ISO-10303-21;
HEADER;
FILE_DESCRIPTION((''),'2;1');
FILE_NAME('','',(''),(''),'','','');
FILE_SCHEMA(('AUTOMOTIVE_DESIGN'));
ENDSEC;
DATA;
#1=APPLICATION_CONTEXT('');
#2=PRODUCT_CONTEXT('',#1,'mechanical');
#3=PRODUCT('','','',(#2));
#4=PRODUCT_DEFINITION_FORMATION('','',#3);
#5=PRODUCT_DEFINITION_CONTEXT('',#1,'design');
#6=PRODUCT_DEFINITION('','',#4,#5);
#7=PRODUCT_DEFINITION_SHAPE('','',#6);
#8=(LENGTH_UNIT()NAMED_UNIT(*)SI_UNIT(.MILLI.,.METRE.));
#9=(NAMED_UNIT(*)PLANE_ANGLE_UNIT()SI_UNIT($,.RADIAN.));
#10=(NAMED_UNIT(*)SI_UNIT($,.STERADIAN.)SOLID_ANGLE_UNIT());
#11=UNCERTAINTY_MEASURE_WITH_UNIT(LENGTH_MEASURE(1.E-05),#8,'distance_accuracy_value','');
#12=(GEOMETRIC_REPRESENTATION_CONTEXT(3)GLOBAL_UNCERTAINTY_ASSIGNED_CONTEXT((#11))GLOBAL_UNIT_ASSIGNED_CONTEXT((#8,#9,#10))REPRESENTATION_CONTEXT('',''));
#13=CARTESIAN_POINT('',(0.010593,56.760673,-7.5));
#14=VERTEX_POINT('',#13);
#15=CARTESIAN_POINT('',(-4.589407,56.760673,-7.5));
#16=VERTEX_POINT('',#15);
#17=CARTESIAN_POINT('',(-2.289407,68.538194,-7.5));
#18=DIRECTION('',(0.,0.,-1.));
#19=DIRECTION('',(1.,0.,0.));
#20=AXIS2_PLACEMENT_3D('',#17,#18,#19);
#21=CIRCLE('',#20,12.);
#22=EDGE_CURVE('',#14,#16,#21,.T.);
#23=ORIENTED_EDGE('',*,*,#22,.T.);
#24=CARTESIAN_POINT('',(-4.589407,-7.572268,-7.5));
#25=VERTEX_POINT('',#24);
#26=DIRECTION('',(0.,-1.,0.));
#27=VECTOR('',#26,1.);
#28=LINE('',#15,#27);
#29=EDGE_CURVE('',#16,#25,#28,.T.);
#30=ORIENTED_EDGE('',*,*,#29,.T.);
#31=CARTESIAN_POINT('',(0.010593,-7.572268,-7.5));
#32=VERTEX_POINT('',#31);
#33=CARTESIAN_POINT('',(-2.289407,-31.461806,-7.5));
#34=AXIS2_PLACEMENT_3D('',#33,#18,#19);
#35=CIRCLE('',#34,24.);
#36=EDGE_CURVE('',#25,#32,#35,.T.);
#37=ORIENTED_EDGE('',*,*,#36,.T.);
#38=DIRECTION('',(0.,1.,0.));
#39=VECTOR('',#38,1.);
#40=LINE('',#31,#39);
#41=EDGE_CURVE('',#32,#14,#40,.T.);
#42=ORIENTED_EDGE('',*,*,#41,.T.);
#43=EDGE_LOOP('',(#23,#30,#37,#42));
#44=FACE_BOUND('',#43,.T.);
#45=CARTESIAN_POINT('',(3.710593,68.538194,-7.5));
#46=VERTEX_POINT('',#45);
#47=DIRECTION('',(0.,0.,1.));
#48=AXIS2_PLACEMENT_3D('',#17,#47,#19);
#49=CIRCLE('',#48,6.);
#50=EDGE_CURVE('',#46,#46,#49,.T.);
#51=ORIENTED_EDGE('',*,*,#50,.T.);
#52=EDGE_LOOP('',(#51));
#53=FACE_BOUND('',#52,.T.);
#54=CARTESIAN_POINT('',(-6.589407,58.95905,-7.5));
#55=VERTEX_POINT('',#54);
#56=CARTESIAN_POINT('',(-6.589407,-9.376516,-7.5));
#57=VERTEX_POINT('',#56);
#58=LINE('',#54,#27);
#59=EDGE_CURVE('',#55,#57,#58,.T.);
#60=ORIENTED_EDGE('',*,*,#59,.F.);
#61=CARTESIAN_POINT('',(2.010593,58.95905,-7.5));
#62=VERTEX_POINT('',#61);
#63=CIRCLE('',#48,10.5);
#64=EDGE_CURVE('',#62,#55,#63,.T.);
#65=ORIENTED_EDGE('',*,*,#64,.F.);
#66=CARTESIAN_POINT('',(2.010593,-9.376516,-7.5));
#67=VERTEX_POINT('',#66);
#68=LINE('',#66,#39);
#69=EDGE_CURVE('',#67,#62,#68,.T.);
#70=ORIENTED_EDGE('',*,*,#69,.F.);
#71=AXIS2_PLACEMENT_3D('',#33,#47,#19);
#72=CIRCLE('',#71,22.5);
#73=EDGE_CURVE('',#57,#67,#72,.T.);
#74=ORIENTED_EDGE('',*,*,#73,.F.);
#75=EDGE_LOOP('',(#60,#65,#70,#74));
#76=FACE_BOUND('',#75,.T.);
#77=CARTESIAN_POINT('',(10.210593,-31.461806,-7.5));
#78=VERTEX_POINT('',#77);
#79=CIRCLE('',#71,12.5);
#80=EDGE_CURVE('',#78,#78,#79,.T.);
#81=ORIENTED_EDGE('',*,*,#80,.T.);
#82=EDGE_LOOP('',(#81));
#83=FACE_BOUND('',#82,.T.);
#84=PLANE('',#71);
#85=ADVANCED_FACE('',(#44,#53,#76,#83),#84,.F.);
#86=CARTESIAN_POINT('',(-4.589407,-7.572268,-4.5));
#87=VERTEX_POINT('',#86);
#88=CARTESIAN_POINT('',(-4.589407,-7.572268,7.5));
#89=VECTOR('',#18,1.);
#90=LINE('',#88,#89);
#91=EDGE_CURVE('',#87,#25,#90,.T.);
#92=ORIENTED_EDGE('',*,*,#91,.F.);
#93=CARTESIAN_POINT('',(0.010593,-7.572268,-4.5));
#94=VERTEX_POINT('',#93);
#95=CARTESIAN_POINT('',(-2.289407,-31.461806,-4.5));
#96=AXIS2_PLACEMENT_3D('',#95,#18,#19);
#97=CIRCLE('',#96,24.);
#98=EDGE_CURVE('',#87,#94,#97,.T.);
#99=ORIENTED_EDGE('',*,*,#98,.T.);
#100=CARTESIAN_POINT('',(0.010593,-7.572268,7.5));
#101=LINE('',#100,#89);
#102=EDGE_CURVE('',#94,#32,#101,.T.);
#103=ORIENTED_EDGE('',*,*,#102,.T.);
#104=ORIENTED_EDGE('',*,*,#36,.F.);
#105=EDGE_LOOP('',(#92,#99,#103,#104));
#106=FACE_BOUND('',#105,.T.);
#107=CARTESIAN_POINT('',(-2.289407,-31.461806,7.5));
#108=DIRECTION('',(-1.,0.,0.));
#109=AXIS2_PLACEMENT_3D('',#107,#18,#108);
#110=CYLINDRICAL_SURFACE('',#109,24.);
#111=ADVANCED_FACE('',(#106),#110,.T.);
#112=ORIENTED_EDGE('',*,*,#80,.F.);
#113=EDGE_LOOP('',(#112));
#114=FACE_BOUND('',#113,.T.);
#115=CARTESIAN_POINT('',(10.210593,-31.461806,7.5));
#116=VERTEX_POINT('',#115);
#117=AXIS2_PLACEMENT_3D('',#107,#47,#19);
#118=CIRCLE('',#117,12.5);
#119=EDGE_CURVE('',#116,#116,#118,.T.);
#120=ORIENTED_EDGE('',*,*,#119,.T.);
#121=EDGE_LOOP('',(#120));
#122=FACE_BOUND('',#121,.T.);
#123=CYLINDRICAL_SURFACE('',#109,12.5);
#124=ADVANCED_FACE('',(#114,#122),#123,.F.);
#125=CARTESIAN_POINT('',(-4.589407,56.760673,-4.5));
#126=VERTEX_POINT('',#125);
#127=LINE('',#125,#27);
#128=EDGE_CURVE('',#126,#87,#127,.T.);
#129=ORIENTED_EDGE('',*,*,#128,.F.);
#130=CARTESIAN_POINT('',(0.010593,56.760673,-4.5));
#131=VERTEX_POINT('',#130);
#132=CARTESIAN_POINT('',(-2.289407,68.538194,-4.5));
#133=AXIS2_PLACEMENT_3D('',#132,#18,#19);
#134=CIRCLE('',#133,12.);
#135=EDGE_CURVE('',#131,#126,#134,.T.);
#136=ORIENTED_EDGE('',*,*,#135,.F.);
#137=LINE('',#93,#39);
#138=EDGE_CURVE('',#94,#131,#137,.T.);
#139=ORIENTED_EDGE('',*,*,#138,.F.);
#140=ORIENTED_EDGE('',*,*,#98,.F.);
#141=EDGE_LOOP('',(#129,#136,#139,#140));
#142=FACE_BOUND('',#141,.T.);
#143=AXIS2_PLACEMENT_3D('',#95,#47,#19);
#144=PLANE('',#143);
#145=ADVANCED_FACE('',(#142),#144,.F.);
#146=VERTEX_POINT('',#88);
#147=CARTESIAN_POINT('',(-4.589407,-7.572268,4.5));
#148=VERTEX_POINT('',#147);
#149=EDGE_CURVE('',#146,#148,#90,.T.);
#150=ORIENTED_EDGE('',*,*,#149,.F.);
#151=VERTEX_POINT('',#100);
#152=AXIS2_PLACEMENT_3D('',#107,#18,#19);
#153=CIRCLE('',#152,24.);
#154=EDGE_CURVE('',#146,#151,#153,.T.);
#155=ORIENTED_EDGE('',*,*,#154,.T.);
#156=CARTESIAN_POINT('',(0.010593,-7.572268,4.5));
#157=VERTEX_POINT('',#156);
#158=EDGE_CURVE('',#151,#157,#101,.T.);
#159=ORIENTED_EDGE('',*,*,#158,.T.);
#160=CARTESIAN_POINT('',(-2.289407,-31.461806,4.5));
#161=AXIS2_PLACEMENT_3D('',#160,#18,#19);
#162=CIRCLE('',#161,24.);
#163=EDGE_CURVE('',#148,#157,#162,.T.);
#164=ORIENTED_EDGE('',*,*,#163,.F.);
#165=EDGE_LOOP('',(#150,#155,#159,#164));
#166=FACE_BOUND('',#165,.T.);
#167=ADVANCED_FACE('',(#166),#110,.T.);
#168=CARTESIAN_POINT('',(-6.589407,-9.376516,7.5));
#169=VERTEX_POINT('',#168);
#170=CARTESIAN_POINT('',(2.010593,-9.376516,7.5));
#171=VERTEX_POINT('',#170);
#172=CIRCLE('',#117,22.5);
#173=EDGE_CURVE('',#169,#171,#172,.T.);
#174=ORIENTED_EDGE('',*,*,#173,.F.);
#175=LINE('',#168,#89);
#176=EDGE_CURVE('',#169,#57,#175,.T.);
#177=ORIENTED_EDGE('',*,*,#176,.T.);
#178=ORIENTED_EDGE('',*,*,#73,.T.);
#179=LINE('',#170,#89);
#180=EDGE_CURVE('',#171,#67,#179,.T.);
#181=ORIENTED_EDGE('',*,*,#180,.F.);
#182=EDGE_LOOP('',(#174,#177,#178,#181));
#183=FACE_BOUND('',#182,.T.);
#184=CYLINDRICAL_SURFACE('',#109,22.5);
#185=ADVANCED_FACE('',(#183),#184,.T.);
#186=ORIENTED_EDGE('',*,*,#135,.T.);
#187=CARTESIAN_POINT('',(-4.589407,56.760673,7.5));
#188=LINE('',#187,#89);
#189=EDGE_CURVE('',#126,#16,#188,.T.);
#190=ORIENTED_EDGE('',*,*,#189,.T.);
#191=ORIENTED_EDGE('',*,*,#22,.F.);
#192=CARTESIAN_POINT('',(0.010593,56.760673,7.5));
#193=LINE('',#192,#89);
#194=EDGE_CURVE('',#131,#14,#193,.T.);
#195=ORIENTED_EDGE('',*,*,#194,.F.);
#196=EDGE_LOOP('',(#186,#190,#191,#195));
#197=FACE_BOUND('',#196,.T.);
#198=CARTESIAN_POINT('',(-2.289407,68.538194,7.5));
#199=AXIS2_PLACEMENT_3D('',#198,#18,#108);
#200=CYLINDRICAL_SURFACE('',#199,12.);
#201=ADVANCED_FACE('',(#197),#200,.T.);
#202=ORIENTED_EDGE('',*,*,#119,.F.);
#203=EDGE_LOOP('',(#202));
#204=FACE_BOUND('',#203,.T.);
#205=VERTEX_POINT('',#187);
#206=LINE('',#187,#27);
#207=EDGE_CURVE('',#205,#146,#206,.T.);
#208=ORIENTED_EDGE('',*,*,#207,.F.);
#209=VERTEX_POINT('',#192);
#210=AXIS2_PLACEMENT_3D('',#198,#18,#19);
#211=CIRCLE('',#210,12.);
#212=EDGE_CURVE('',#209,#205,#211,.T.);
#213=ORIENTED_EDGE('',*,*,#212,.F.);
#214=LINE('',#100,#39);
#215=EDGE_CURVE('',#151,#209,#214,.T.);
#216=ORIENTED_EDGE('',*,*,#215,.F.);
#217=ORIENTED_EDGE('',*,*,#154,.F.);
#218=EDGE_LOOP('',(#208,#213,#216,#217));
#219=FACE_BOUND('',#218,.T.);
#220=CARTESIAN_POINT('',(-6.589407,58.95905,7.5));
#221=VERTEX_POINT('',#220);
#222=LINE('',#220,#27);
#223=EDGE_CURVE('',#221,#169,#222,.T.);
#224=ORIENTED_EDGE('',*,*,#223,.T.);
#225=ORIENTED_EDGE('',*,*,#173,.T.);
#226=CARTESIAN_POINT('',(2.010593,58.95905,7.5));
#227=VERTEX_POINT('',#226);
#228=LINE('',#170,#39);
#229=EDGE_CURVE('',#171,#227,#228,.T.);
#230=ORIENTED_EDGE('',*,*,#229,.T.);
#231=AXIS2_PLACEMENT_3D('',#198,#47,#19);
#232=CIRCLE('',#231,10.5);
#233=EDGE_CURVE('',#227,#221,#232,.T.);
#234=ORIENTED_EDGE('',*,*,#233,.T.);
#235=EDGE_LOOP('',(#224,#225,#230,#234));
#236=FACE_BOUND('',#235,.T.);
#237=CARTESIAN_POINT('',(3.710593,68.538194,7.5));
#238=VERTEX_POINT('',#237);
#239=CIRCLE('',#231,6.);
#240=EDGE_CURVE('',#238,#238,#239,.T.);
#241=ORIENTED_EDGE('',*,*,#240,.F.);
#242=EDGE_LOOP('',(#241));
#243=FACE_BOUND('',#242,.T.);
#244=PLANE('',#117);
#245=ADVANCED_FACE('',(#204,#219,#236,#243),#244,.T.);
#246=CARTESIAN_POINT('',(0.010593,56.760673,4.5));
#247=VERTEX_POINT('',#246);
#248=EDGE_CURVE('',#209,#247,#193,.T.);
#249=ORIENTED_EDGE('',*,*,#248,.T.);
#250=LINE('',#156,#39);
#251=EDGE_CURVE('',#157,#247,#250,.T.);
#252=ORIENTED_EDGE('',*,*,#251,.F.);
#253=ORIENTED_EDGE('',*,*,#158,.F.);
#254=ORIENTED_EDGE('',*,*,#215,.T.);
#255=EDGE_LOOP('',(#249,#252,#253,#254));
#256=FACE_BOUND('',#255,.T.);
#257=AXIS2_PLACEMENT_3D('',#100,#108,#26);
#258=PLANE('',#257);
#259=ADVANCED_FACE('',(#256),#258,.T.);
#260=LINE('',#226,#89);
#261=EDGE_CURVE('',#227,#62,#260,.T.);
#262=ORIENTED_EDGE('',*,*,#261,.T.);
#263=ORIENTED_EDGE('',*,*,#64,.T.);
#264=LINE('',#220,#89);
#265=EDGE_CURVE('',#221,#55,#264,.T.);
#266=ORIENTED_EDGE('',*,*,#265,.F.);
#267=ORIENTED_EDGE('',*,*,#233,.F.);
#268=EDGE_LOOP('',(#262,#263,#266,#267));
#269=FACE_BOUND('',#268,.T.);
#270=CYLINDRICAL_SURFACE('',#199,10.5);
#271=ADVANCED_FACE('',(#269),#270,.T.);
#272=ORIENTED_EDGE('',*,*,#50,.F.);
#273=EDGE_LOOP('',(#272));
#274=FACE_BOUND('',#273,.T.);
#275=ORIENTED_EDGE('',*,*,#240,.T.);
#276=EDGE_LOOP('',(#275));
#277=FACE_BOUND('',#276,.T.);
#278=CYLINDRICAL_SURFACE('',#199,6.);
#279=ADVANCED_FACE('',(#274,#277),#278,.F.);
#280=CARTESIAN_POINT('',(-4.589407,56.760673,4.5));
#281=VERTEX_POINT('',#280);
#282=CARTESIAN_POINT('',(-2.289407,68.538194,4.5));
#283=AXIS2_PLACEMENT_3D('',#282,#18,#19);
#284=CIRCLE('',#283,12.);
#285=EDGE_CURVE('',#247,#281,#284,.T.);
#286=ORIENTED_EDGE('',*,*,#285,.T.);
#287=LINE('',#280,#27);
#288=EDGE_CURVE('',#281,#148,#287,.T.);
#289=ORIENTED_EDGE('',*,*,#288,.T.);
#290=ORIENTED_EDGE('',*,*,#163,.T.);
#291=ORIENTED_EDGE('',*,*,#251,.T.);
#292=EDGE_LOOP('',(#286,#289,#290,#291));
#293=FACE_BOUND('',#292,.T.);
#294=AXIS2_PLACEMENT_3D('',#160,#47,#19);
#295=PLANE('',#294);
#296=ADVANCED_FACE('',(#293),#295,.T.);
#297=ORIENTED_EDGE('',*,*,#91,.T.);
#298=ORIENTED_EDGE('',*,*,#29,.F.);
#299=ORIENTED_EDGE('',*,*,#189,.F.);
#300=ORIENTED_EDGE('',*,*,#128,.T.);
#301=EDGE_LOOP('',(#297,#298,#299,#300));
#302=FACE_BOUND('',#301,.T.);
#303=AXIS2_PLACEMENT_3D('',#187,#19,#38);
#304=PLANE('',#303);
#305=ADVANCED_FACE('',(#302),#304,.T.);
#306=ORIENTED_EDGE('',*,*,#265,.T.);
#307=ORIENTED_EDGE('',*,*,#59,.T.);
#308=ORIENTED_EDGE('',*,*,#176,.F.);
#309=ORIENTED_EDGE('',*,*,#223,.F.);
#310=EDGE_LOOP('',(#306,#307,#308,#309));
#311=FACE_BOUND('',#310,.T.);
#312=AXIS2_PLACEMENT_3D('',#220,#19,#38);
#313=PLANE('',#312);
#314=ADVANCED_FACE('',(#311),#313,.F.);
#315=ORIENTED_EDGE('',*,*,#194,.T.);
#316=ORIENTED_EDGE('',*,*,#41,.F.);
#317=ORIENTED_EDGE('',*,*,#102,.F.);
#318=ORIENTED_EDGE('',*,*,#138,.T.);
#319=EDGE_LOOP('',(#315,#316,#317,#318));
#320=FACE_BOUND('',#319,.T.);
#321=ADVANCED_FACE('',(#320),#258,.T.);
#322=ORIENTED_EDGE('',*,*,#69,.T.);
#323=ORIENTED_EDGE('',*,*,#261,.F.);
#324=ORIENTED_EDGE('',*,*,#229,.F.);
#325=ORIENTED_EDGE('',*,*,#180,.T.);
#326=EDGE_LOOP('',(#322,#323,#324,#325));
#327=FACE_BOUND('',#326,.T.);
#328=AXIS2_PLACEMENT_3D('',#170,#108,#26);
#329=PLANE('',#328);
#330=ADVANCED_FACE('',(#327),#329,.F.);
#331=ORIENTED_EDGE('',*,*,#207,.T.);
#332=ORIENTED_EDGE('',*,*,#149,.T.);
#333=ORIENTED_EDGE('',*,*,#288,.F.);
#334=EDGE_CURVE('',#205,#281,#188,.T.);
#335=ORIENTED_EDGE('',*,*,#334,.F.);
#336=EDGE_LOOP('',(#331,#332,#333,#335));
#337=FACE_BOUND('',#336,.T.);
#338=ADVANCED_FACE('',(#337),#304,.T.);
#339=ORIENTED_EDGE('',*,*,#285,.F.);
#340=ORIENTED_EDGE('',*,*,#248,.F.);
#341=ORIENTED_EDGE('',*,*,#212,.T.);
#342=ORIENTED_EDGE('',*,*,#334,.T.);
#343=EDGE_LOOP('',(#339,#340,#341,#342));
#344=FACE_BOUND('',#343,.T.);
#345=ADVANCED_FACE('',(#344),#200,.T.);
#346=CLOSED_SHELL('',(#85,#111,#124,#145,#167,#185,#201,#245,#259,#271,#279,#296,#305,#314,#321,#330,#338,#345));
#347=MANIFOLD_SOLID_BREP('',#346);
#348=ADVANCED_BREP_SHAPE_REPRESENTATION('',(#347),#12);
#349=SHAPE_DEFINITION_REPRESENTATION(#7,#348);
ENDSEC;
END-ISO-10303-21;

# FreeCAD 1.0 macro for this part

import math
import FreeCAD as App
import Part
import Sketcher
from FreeCAD import Vector

doc = App.newDocument("Part")
params = doc.addObject("Spreadsheet::Sheet", "Params")
for row, (alias, value) in enumerate([
    ("sketch1_diameter", "25 mm"),
    ("sketch1_diameter2", "12 mm"),
    ("sketch1_radius", "12 mm"),
    ("sketch1_radius2", "24 mm"),
    ("sketch1_radius3", "10.5 mm"),
    ("pad1_length", "15 mm"),
    ("sketch2_radius", "24 mm"),
    ("sketch2_radius2", "12 mm"),
    ("pad2_length", "9 mm"),
], start=1):
    params.set(f"A{row}", alias)
    params.set(f"B{row}", "=" + value)
    params.setAlias(f"B{row}", alias)

body = doc.addObject("PartDesign::Body", "Body")

sketch1 = body.newObject("Sketcher::SketchObject", "Sketch")
sketch1.AttachmentSupport = (doc.getObject("XY_Plane"), [""])
sketch1.MapMode = "FlatFace"
sketch1.addGeometry([
    Part.LineSegment(Vector(2.010593, -9.376516, 0), Vector(2.010593, 58.95905, 0)),
    Part.ArcOfCircle(Part.Circle(Vector(-2.289407, 68.538194, 0), Vector(0, 0, 1), 10.5), math.radians(-65.825075), math.radians(245.825075)),
    Part.LineSegment(Vector(-6.589407, 58.95905, 0), Vector(-6.589407, -9.376516, 0)),
    Part.ArcOfCircle(Part.Circle(Vector(-2.289407, -31.461806, 0), Vector(0, 0, 1), 22.5), math.radians(101.017634), math.radians(438.982366)),
    Part.Circle(Vector(-2.289407, -31.461806, 0), Vector(0, 0, 1), 12.5),
    Part.LineSegment(Vector(-4.589407, -7.572268, 0), Vector(-4.589407, 56.760673, 0)),
    Part.ArcOfCircle(Part.Circle(Vector(-2.289407, 68.538194, 0), Vector(0, 0, 1), 12), math.radians(-101.050065), math.radians(-78.949935)),
    Part.LineSegment(Vector(0.010593, 56.760673, 0), Vector(0.010593, -7.572268, 0)),
    Part.ArcOfCircle(Part.Circle(Vector(-2.289407, -31.461806, 0), Vector(0, 0, 1), 24), math.radians(84.500715), math.radians(95.499285)),
    Part.Circle(Vector(-2.289407, 68.538194, 0), Vector(0, 0, 1), 6),
], False)
sketch1.addConstraint([
    Sketcher.Constraint("Coincident", 0, 2, 1, 1),
    Sketcher.Constraint("Coincident", 1, 2, 2, 1),
    Sketcher.Constraint("Coincident", 2, 2, 3, 1),
    Sketcher.Constraint("Coincident", 3, 2, 0, 1),
    Sketcher.Constraint("Coincident", 5, 2, 6, 1),
    Sketcher.Constraint("Coincident", 6, 2, 7, 1),
    Sketcher.Constraint("Coincident", 7, 2, 8, 1),
    Sketcher.Constraint("Coincident", 8, 2, 5, 1),
    Sketcher.Constraint("Vertical", 0),
    Sketcher.Constraint("Vertical", 2),
    Sketcher.Constraint("Vertical", 5),
    Sketcher.Constraint("Vertical", 7),
    Sketcher.Constraint("Coincident", 4, 3, 3, 3),
    Sketcher.Constraint("Coincident", 6, 3, 1, 3),
    Sketcher.Constraint("Coincident", 8, 3, 3, 3),
    Sketcher.Constraint("Coincident", 9, 3, 1, 3),
    Sketcher.Constraint("Horizontal", 0, 2, 1, 2),
    Sketcher.Constraint("Horizontal", 2, 2, 3, 2),
    Sketcher.Constraint("Horizontal", 5, 2, 6, 2),
    Sketcher.Constraint("Diameter", 4, 25.0),
    Sketcher.Constraint("Diameter", 9, 12.0),
    Sketcher.Constraint("Radius", 6, 12.0),
    Sketcher.Constraint("Radius", 8, 24.0),
    Sketcher.Constraint("Radius", 1, 10.5),
    Sketcher.Constraint("Radius", 3, 22.5),
    Sketcher.Constraint("DistanceY", 3, 3, 1, 3, 100.0),
    Sketcher.Constraint("DistanceX", 1, 2, 5, 2, 2.0),
    Sketcher.Constraint("DistanceX", 1, 3, 0, 2, 4.3),
    Sketcher.Constraint("DistanceY", -1, 1, 0, 2, 58.95905),
    Sketcher.Constraint("DistanceX", 1, 3, -1, 1, 2.289407),
])
sketch1.setExpression("Constraints[19]", "Params.sketch1_diameter")
sketch1.setExpression("Constraints[20]", "Params.sketch1_diameter2")
sketch1.setExpression("Constraints[21]", "Params.sketch1_radius")
sketch1.setExpression("Constraints[22]", "Params.sketch1_radius2")
sketch1.setExpression("Constraints[23]", "Params.sketch1_radius3")
pad1 = body.newObject("PartDesign::Pad", "Pad")
pad1.Profile = sketch1
pad1.setExpression("Length", "Params.pad1_length")
pad1.Midplane = True

sketch2 = body.newObject("Sketcher::SketchObject", "Sketch001")
sketch2.AttachmentSupport = (doc.getObject("XY_Plane"), [""])
sketch2.MapMode = "FlatFace"
sketch2.addGeometry([
    Part.LineSegment(Vector(-4.589407, 56.760673, 0), Vector(-4.589407, -7.572268, 0)),
    Part.ArcOfCircle(Part.Circle(Vector(-2.289407, -31.461806, 0), Vector(0, 0, 1), 24), math.radians(84.500715), math.radians(95.499285)),
    Part.LineSegment(Vector(0.010593, -7.572268, 0), Vector(0.010593, 56.760673, 0)),
    Part.ArcOfCircle(Part.Circle(Vector(-2.289407, 68.538194, 0), Vector(0, 0, 1), 12), math.radians(-101.050065), math.radians(-78.949935)),
], False)
sketch2.addConstraint([
    Sketcher.Constraint("Coincident", 0, 2, 1, 2),
    Sketcher.Constraint("Coincident", 1, 1, 2, 1),
    Sketcher.Constraint("Coincident", 2, 2, 3, 2),
    Sketcher.Constraint("Coincident", 3, 1, 0, 1),
    Sketcher.Constraint("Vertical", 0),
    Sketcher.Constraint("Vertical", 2),
    Sketcher.Constraint("Horizontal", 0, 2, 1, 1),
    Sketcher.Constraint("Horizontal", 2, 2, 3, 1),
    Sketcher.Constraint("Radius", 1, 24.0),
    Sketcher.Constraint("Radius", 3, 12.0),
    Sketcher.Constraint("DistanceY", 1, 3, 3, 3, 100.0),
    Sketcher.Constraint("DistanceX", 0, 2, 1, 3, 2.3),
    Sketcher.Constraint("DistanceY", 0, 2, -1, 1, 7.572268),
    Sketcher.Constraint("DistanceX", 1, 3, -1, 1, 2.289407),
])
sketch2.setExpression("Constraints[8]", "Params.sketch2_radius")
sketch2.setExpression("Constraints[9]", "Params.sketch2_radius2")
pad2 = body.newObject("PartDesign::Pad", "Pad001")
pad2.Profile = sketch2
pad2.setExpression("Length", "Params.pad2_length")
pad2.Midplane = True

doc.recompute()
